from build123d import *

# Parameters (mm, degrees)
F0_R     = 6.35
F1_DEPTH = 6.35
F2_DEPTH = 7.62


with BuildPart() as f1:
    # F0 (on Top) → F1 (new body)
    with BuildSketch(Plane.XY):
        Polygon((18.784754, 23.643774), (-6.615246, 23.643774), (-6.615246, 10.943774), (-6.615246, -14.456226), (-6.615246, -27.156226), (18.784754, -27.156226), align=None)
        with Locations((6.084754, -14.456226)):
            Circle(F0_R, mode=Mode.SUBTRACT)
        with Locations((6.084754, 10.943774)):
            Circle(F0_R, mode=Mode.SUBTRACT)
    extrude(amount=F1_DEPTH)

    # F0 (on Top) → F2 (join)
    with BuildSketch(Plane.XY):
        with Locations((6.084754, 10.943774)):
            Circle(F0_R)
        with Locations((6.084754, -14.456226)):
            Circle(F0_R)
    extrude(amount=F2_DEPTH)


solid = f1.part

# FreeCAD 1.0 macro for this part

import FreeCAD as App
import Part
import Sketcher
from FreeCAD import Vector
Q = App.Units.Quantity


def add_polygon(sketch, points):
    """Adds a closed chain of lines whose ends are joined by coincident constraints."""
    first, n = sketch.GeometryCount, len(points)
    for a, b in zip(points, points[1:] + points[:1]):
        sketch.addGeometry(Part.LineSegment(App.Vector(*a, 0), App.Vector(*b, 0)), False)
    for i in range(n):
        sketch.addConstraint(Sketcher.Constraint("Coincident", first + i, 2, first + (i + 1) % n, 1))

doc = App.newDocument("Part")
body = doc.addObject("PartDesign::Body", "Body")

# Sketch on XY plane
sketch1 = body.newObject("Sketcher::SketchObject", "Sketch")
sketch1.AttachmentSupport = (doc.getObject("XY_Plane"), [""])
sketch1.MapMode = "FlatFace"
add_polygon(sketch1, [(19, 24), (-7, 24), (-7, -27), (19, -27)])  # lines 0-3
sketch1.addGeometry(Part.Circle(Vector(6, -14, 0), Vector(0, 0, 1), 6), False)  # 4
sketch1.addGeometry(Part.Circle(Vector(6, 11, 0), Vector(0, 0, 1), 6), False)  # 5
sketch1.addConstraint(Sketcher.Constraint("Horizontal", 0))
sketch1.addConstraint(Sketcher.Constraint("Vertical", 1))
sketch1.addConstraint(Sketcher.Constraint("Horizontal", 2))
sketch1.addConstraint(Sketcher.Constraint("Vertical", 3))
sketch1.addConstraint(Sketcher.Constraint("Equal", 4, 5))
sketch1.addConstraint(Sketcher.Constraint("Vertical", 4, 3, 5, 3))
sketch1.addConstraint(Sketcher.Constraint("Diameter", 4, Q("0.5 in")))
sketch1.addConstraint(Sketcher.Constraint("DistanceX", 0, 2, 0, 1, Q("1 in")))
sketch1.addConstraint(Sketcher.Constraint("DistanceY", 1, 2, 1, 1, Q("2 in")))
sketch1.addConstraint(Sketcher.Constraint("DistanceY", 4, 3, 5, 3, Q("1 in")))
sketch1.addConstraint(Sketcher.Constraint("DistanceX", 0, 2, 5, 3, Q("0.5 in")))
sketch1.addConstraint(Sketcher.Constraint("DistanceY", 5, 3, 0, 2, Q("0.5 in")))
sketch1.addConstraint(Sketcher.Constraint("DistanceX", -1, 1, 4, 3, 6.084754))
sketch1.addConstraint(Sketcher.Constraint("DistanceY", 4, 3, -1, 1, 14.456226))
pad1 = body.newObject("PartDesign::Pad", "Pad")
pad1.Profile = sketch1
pad1.Length = Q("0.25 in")

# Sketch on XY plane
sketch2 = body.newObject("Sketcher::SketchObject", "Sketch001")
sketch2.AttachmentSupport = (doc.getObject("XY_Plane"), [""])
sketch2.MapMode = "FlatFace"
sketch2.addGeometry(Part.Circle(Vector(6, 11, 0), Vector(0, 0, 1), 6), False)
sketch2.addGeometry(Part.Circle(Vector(6, -14, 0), Vector(0, 0, 1), 6), False)
sketch2.addConstraint(Sketcher.Constraint("Equal", 0, 1))
sketch2.addConstraint(Sketcher.Constraint("Vertical", 0, 3, 1, 3))
sketch2.addConstraint(Sketcher.Constraint("Diameter", 0, Q("0.5 in")))
sketch2.addConstraint(Sketcher.Constraint("DistanceY", 1, 3, 0, 3, Q("1 in")))
sketch2.addConstraint(Sketcher.Constraint("DistanceX", -1, 1, 0, 3, 6.084754))
sketch2.addConstraint(Sketcher.Constraint("DistanceY", -1, 1, 0, 3, 10.943774))
pad2 = body.newObject("PartDesign::Pad", "Pad001")
pad2.Profile = sketch2
pad2.Length = Q("0.3 in")

doc.recompute()
